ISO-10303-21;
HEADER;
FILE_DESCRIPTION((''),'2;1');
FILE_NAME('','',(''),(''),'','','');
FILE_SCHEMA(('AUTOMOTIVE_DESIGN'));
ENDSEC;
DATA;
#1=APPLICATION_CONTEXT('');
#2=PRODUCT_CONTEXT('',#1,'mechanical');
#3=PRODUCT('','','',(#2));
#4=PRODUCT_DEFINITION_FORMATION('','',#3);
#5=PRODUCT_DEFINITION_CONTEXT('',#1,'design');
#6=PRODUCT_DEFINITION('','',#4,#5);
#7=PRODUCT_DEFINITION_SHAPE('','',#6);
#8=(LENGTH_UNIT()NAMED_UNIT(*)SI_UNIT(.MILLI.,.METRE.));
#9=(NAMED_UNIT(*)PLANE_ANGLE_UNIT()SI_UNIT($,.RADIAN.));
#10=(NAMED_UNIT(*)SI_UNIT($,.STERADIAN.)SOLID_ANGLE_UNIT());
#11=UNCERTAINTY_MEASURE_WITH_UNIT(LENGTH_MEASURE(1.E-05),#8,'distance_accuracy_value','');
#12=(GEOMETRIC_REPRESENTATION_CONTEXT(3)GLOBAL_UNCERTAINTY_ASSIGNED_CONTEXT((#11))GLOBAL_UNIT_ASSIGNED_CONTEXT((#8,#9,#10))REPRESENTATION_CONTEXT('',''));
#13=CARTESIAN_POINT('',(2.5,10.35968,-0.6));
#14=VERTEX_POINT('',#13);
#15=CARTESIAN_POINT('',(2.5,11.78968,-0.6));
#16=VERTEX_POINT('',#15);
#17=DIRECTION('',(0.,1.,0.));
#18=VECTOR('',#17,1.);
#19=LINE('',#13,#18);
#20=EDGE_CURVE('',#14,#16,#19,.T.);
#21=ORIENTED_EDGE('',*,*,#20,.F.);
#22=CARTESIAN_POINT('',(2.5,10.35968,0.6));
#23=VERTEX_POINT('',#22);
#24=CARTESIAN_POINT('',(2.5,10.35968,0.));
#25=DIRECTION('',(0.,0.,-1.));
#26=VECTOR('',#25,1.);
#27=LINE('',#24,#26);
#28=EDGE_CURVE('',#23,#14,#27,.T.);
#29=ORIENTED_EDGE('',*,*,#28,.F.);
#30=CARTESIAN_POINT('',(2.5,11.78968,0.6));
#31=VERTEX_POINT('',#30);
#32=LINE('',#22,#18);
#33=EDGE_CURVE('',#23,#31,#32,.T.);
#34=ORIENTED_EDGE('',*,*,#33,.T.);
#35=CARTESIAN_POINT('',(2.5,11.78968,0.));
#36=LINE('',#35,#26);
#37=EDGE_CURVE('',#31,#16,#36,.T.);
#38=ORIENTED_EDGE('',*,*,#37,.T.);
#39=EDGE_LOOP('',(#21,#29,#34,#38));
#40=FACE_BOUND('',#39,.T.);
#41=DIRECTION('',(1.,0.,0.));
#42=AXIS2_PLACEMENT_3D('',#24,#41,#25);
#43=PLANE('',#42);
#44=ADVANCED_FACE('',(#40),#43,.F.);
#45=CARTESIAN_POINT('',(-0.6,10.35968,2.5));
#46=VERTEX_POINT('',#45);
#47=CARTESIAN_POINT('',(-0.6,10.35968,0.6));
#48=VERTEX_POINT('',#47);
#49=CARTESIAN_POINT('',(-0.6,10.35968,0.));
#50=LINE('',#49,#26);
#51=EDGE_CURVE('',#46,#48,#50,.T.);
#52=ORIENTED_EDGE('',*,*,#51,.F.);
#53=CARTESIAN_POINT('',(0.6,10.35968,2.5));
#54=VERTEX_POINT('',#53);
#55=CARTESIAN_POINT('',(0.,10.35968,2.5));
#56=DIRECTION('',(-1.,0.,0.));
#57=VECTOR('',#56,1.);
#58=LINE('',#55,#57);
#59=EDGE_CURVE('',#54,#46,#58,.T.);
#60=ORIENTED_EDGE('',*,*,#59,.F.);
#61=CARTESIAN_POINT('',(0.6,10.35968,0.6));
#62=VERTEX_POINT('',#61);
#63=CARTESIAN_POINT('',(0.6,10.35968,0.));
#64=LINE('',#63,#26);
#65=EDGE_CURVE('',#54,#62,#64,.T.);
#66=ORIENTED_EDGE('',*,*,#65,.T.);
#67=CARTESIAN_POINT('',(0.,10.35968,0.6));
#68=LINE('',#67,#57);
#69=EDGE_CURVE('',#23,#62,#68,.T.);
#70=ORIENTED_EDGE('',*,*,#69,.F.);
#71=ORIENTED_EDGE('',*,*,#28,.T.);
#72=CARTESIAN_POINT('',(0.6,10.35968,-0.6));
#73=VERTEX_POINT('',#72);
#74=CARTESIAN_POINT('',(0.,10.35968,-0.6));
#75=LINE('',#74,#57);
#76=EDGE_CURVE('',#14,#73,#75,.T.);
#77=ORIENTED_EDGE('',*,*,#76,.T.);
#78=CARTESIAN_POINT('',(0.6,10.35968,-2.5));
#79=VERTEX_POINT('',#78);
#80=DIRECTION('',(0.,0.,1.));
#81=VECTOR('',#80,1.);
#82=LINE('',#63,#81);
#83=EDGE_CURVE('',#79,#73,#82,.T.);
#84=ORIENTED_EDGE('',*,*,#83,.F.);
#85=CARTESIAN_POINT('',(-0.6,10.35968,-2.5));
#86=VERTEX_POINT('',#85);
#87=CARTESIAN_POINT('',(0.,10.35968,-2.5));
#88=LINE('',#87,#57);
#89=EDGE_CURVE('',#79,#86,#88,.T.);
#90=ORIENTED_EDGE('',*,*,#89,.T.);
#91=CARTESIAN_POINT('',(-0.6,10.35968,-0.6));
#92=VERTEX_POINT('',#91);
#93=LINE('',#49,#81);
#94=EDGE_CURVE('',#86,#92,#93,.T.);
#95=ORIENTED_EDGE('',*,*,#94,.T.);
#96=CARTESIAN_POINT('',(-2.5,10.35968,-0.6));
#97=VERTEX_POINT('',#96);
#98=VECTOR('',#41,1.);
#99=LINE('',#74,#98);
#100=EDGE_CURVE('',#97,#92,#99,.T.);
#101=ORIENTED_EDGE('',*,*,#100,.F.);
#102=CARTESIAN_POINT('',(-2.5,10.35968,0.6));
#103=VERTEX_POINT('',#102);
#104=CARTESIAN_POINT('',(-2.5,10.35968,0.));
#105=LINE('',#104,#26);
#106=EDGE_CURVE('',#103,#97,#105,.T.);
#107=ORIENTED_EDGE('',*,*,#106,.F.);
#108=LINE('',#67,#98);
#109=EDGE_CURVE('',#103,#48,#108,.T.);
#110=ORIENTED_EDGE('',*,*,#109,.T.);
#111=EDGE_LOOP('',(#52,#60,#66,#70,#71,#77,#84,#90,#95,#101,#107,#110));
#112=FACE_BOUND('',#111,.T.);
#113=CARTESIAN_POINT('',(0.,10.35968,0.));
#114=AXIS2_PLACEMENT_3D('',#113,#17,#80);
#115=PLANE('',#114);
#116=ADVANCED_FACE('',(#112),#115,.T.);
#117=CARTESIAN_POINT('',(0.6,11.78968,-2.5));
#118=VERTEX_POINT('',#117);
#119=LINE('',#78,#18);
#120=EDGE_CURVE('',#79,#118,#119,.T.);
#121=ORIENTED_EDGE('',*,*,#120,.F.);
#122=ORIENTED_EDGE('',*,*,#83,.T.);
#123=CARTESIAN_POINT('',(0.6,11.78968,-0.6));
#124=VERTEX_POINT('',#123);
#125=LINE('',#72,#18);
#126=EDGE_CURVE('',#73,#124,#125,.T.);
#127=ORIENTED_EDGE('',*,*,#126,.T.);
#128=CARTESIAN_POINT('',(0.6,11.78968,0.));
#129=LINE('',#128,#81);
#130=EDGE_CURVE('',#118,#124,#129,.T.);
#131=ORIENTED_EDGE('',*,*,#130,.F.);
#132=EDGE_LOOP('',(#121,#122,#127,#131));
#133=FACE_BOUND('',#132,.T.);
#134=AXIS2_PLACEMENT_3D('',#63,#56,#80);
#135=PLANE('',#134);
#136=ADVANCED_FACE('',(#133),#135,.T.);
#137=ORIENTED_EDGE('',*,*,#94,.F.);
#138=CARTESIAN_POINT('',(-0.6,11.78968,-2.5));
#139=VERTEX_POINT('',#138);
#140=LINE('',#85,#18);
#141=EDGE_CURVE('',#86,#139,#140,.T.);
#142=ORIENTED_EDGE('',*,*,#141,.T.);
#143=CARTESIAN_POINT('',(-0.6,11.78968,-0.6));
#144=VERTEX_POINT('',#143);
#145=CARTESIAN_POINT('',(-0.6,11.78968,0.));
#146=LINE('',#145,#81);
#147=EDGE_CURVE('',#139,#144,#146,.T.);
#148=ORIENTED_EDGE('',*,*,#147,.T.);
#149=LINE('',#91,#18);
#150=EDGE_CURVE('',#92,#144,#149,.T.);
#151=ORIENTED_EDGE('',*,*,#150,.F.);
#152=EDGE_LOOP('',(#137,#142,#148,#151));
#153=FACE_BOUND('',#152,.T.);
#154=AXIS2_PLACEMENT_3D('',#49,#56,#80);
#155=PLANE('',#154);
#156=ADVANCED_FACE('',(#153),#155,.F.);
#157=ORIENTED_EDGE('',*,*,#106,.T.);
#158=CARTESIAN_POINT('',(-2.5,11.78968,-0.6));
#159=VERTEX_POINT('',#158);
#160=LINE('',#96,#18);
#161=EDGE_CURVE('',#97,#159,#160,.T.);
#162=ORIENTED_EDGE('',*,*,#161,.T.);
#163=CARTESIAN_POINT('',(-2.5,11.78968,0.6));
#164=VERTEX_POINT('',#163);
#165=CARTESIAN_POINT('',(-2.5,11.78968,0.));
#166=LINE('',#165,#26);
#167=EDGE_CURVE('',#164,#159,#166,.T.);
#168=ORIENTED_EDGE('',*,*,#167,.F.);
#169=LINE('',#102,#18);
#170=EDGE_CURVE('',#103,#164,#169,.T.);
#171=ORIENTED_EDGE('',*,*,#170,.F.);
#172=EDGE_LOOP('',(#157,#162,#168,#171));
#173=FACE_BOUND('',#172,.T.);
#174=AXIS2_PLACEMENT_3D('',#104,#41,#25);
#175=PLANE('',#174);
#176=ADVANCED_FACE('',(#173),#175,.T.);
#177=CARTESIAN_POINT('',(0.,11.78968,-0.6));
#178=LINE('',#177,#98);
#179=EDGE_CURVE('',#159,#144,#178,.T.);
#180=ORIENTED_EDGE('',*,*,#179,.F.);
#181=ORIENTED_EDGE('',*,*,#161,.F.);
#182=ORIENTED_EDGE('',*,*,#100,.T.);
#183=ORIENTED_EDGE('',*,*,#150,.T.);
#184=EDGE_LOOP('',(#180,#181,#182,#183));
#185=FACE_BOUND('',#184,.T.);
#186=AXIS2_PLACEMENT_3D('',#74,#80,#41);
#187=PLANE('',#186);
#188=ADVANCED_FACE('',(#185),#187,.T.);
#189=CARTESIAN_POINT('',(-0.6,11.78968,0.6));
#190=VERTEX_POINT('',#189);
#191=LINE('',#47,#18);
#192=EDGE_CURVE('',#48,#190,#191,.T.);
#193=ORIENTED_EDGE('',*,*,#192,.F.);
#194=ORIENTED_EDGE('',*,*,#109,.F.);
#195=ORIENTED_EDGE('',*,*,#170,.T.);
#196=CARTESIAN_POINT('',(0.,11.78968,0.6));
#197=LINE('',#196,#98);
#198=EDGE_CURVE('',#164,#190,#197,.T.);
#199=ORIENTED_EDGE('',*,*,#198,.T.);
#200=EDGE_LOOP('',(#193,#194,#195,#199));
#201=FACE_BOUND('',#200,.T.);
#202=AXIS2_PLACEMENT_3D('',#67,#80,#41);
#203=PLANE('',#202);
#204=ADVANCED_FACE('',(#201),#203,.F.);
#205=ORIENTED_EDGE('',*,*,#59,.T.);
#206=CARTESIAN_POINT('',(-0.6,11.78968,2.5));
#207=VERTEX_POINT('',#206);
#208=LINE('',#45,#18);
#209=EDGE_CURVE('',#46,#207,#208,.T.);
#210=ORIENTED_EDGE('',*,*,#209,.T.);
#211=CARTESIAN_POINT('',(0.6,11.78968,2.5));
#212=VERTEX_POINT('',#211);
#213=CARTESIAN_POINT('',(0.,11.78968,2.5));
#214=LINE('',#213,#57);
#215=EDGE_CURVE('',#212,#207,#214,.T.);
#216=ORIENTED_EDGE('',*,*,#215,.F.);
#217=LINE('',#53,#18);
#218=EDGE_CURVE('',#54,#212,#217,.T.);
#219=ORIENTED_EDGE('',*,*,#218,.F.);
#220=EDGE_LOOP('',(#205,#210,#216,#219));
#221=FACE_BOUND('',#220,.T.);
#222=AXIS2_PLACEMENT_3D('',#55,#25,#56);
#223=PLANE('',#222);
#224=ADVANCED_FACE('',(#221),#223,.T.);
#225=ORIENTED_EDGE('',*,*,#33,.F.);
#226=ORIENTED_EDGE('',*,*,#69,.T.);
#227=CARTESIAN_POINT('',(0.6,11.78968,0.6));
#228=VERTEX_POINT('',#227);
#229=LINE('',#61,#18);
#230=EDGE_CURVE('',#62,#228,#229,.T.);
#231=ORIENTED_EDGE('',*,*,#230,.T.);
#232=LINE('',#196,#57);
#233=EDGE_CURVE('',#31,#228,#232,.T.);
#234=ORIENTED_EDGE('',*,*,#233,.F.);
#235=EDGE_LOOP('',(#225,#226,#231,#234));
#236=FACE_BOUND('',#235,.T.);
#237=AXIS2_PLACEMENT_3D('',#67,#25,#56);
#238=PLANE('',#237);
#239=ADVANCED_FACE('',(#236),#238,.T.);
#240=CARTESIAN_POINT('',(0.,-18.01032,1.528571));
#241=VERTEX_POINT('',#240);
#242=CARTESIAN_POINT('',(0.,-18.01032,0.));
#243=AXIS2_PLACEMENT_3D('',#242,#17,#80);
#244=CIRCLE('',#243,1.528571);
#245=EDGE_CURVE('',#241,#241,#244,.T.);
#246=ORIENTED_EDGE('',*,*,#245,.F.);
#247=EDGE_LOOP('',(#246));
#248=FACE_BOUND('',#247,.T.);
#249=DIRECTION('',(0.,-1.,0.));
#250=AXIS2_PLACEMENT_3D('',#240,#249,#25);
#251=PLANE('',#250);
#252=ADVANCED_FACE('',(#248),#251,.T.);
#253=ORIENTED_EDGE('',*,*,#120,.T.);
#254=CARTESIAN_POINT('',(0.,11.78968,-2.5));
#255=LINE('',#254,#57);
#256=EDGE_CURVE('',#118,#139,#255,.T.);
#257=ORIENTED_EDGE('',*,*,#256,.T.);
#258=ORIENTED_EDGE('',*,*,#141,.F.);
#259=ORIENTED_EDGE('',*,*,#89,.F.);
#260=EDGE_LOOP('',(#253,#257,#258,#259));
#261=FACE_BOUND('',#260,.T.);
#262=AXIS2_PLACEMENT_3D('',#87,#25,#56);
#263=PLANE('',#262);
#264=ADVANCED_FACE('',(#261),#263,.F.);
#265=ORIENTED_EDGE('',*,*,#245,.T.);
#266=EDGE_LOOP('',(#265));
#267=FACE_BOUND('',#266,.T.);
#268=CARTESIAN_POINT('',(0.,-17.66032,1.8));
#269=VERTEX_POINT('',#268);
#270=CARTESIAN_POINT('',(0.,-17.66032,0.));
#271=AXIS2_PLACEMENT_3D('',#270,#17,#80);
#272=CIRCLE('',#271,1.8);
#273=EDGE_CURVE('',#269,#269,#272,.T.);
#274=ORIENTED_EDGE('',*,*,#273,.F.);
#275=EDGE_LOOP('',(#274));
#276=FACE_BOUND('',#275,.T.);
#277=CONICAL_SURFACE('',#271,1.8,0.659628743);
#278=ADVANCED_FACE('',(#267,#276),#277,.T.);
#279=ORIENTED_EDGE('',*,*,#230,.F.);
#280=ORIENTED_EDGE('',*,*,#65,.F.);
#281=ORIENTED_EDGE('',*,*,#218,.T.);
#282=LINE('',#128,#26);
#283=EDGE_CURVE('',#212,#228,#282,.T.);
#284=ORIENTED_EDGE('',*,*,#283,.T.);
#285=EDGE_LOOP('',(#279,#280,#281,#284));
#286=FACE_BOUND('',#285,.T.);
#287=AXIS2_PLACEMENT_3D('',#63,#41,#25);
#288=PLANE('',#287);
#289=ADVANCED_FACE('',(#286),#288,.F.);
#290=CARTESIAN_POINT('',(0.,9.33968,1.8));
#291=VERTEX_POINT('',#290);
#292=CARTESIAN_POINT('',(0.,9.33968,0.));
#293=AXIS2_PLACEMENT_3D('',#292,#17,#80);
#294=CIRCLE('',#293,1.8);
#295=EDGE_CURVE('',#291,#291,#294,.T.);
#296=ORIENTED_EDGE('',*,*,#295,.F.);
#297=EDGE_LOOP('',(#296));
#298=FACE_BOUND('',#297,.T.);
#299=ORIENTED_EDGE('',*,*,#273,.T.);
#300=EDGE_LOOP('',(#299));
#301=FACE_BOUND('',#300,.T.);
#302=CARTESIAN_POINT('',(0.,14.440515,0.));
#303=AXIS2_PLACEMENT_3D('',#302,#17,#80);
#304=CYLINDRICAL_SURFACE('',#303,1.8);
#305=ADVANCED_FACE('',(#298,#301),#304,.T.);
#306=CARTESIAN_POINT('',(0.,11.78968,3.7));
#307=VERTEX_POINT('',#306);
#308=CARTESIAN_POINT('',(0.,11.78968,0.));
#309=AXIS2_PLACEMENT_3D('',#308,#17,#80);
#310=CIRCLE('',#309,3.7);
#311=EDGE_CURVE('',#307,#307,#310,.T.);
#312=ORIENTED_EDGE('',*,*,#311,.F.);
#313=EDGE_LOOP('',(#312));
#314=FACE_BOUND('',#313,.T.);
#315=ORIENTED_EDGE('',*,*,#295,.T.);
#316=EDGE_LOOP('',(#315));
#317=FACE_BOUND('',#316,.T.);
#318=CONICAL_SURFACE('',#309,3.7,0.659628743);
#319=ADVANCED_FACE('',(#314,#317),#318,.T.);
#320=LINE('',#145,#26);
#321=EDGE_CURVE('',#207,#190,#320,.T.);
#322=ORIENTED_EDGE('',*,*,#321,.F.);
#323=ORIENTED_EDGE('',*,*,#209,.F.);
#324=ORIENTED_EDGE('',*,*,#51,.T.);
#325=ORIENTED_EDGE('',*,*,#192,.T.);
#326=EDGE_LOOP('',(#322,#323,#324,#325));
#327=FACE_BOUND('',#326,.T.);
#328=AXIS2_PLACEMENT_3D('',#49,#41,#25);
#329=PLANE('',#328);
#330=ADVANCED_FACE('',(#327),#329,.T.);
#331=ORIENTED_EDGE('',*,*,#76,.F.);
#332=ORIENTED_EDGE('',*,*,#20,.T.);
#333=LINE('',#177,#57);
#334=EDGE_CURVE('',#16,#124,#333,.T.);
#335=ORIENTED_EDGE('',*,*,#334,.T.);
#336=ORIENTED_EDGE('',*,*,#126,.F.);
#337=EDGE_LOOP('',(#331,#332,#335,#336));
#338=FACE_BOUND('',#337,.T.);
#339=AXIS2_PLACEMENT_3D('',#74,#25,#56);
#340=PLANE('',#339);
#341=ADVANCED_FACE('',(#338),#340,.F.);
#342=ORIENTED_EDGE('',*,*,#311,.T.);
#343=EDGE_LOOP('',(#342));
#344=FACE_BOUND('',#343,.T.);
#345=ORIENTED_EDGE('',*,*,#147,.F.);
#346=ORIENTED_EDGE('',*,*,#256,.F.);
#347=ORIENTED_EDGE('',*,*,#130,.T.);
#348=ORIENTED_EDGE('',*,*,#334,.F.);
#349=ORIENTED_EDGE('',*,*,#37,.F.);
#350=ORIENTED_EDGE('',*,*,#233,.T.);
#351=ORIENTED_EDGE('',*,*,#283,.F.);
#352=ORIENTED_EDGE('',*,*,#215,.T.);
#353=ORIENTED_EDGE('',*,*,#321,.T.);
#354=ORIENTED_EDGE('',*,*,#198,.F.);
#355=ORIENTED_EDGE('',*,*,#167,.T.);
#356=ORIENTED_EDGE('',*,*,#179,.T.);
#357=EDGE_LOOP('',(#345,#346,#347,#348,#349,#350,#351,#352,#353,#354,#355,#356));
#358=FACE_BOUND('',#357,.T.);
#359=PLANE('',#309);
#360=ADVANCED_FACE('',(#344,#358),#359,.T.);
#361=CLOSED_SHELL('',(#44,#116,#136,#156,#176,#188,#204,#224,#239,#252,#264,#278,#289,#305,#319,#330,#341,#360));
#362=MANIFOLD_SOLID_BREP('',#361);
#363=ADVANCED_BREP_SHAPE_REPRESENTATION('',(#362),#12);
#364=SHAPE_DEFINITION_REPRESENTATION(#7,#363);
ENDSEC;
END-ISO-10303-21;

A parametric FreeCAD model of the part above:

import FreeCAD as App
import Part
import Sketcher

V = App.Vector
Q = App.Units.Quantity

doc = App.newDocument("Part")
body = doc.addObject("PartDesign::Body", "Body")

# Sketch on YZ plane
sketch1 = body.newObject("Sketcher::SketchObject", "Sketch")
sketch1.AttachmentSupport = (doc.getObject("YZ_Plane"), [""])
sketch1.MapMode = "FlatFace"
sketch1.addGeometry(Part.LineSegment(V(11.79, 0, 0), V(11.79, 3.7, 0)), False)
sketch1.addGeometry(Part.LineSegment(V(11.79, 3.7, 0), V(9.34, 1.8, 0)), False)
sketch1.addGeometry(Part.LineSegment(V(9.34, 1.8, 0), V(-17.66, 1.8, 0)), False)
sketch1.addGeometry(Part.LineSegment(V(-17.66, 1.8, 0), V(-18.01, 1.53, 0)), False)
sketch1.addGeometry(Part.LineSegment(V(-18.01, 1.53, 0), V(-18.01, 0, 0)), False)
sketch1.addGeometry(Part.LineSegment(V(-18.01, 0, 0), V(11.79, 0, 0)), False)
sketch1.addConstraint(Sketcher.Constraint("Coincident", 0, 2, 1, 1))
sketch1.addConstraint(Sketcher.Constraint("Coincident", 1, 2, 2, 1))
sketch1.addConstraint(Sketcher.Constraint("Coincident", 2, 2, 3, 1))
sketch1.addConstraint(Sketcher.Constraint("Coincident", 3, 2, 4, 1))
sketch1.addConstraint(Sketcher.Constraint("Coincident", 4, 2, 5, 1))
sketch1.addConstraint(Sketcher.Constraint("Coincident", 5, 2, 0, 1))
sketch1.addConstraint(Sketcher.Constraint("Vertical", 0))
sketch1.addConstraint(Sketcher.Constraint("Horizontal", 2))
sketch1.addConstraint(Sketcher.Constraint("Vertical", 4))
sketch1.addConstraint(Sketcher.Constraint("Horizontal", 5))
sketch1.addConstraint(Sketcher.Constraint("PointOnObject", 4, 2, -1))
sketch1.addConstraint(Sketcher.Constraint("Parallel", 1, 3))
sketch1.addConstraint(Sketcher.Constraint("DistanceX", 2, 2, 2, 1, Q("27 mm")))
sketch1.addConstraint(Sketcher.Constraint("DistanceX", 5, 1, 5, 2, Q("29.8 mm")))
sketch1.addConstraint(Sketcher.Constraint("DistanceY", 0, 1, 0, 2, Q("3.7 mm")))
sketch1.addConstraint(Sketcher.Constraint("DistanceY", -1, 1, 1, 2, Q("1.8 mm")))
sketch1.addConstraint(Sketcher.Constraint("DistanceX", 1, 2, 0, 2, Q("2.45 mm")))
sketch1.addConstraint(Sketcher.Constraint("DistanceX", -1, 1, 0, 2, Q("11.78968 mm")))
revolution = body.newObject("PartDesign::Revolution", "Revolution")
revolution.Profile = sketch1
revolution.ReferenceAxis = (sketch1, ["H_Axis"])
revolution.Angle = 360

# Sketch on XZ plane
sketch2 = body.newObject("Sketcher::SketchObject", "Sketch001")
sketch2.AttachmentSupport = (doc.getObject("XZ_Plane"), [""])
sketch2.MapMode = "FlatFace"
sketch2.AttachmentOffset = App.Placement(V(0, 0, -11.78968), App.Rotation())
sketch2.addGeometry(Part.LineSegment(V(0.6, 0.6, 0), V(2.5, 0.6, 0)), False)
sketch2.addGeometry(Part.LineSegment(V(2.5, 0.6, 0), V(2.5, -0.6, 0)), False)
sketch2.addGeometry(Part.LineSegment(V(2.5, -0.6, 0), V(0.6, -0.6, 0)), False)
sketch2.addGeometry(Part.LineSegment(V(0.6, -0.6, 0), V(0.6, -2.5, 0)), False)
sketch2.addGeometry(Part.LineSegment(V(0.6, -2.5, 0), V(-0.6, -2.5, 0)), False)
sketch2.addGeometry(Part.LineSegment(V(-0.6, -2.5, 0), V(-0.6, -0.6, 0)), False)
sketch2.addGeometry(Part.LineSegment(V(-0.6, -0.6, 0), V(-2.5, -0.6, 0)), False)
sketch2.addGeometry(Part.LineSegment(V(-2.5, -0.6, 0), V(-2.5, 0.6, 0)), False)
sketch2.addGeometry(Part.LineSegment(V(-2.5, 0.6, 0), V(-0.6, 0.6, 0)), False)
sketch2.addGeometry(Part.LineSegment(V(-0.6, 0.6, 0), V(-0.6, 2.5, 0)), False)
sketch2.addGeometry(Part.LineSegment(V(-0.6, 2.5, 0), V(0.6, 2.5, 0)), False)
sketch2.addGeometry(Part.LineSegment(V(0.6, 2.5, 0), V(0.6, 0.6, 0)), False)
sketch2.addConstraint(Sketcher.Constraint("Coincident", 0, 2, 1, 1))
sketch2.addConstraint(Sketcher.Constraint("Coincident", 1, 2, 2, 1))
sketch2.addConstraint(Sketcher.Constraint("Coincident", 2, 2, 3, 1))
sketch2.addConstraint(Sketcher.Constraint("Coincident", 3, 2, 4, 1))
sketch2.addConstraint(Sketcher.Constraint("Coincident", 4, 2, 5, 1))
sketch2.addConstraint(Sketcher.Constraint("Coincident", 5, 2, 6, 1))
sketch2.addConstraint(Sketcher.Constraint("Coincident", 6, 2, 7, 1))
sketch2.addConstraint(Sketcher.Constraint("Coincident", 7, 2, 8, 1))
sketch2.addConstraint(Sketcher.Constraint("Coincident", 8, 2, 9, 1))
sketch2.addConstraint(Sketcher.Constraint("Coincident", 9, 2, 10, 1))
sketch2.addConstraint(Sketcher.Constraint("Coincident", 10, 2, 11, 1))
sketch2.addConstraint(Sketcher.Constraint("Coincident", 11, 2, 0, 1))
sketch2.addConstraint(Sketcher.Constraint("Horizontal", 0))
sketch2.addConstraint(Sketcher.Constraint("Vertical", 1))
sketch2.addConstraint(Sketcher.Constraint("Horizontal", 2))
sketch2.addConstraint(Sketcher.Constraint("Vertical", 3))
sketch2.addConstraint(Sketcher.Constraint("Horizontal", 4))
sketch2.addConstraint(Sketcher.Constraint("Vertical", 5))
sketch2.addConstraint(Sketcher.Constraint("Horizontal", 6))
sketch2.addConstraint(Sketcher.Constraint("Vertical", 7))
sketch2.addConstraint(Sketcher.Constraint("Horizontal", 8))
sketch2.addConstraint(Sketcher.Constraint("Vertical", 9))
sketch2.addConstraint(Sketcher.Constraint("Horizontal", 10))
sketch2.addConstraint(Sketcher.Constraint("Vertical", 11))
sketch2.addConstraint(Sketcher.Constraint("Symmetric", 0, 2, 6, 2, -1, 1))
sketch2.addConstraint(Sketcher.Constraint("Symmetric", 2, 2, 8, 2, -1, 1))
sketch2.addConstraint(Sketcher.Constraint("Symmetric", 4, 2, 10, 2, -1, 1))
sketch2.addConstraint(Sketcher.Constraint("Symmetric", 2, 2, 5, 2, -2))
sketch2.addConstraint(Sketcher.Constraint("Equal", 10, 1))
sketch2.addConstraint(Sketcher.Constraint("Equal", 8, 3))
sketch2.addConstraint(Sketcher.Constraint("DistanceX", 0, 1, 0, 2, Q("1.9 mm")))
sketch2.addConstraint(Sketcher.Constraint("DistanceX", 4, 2, 4, 1, Q("1.2 mm")))
pocket1 = body.newObject("PartDesign::Pocket", "Pocket")
pocket1.Profile = sketch2
pocket1.Length = 1.43
pocket1.Reversed = True

doc.recompute()
